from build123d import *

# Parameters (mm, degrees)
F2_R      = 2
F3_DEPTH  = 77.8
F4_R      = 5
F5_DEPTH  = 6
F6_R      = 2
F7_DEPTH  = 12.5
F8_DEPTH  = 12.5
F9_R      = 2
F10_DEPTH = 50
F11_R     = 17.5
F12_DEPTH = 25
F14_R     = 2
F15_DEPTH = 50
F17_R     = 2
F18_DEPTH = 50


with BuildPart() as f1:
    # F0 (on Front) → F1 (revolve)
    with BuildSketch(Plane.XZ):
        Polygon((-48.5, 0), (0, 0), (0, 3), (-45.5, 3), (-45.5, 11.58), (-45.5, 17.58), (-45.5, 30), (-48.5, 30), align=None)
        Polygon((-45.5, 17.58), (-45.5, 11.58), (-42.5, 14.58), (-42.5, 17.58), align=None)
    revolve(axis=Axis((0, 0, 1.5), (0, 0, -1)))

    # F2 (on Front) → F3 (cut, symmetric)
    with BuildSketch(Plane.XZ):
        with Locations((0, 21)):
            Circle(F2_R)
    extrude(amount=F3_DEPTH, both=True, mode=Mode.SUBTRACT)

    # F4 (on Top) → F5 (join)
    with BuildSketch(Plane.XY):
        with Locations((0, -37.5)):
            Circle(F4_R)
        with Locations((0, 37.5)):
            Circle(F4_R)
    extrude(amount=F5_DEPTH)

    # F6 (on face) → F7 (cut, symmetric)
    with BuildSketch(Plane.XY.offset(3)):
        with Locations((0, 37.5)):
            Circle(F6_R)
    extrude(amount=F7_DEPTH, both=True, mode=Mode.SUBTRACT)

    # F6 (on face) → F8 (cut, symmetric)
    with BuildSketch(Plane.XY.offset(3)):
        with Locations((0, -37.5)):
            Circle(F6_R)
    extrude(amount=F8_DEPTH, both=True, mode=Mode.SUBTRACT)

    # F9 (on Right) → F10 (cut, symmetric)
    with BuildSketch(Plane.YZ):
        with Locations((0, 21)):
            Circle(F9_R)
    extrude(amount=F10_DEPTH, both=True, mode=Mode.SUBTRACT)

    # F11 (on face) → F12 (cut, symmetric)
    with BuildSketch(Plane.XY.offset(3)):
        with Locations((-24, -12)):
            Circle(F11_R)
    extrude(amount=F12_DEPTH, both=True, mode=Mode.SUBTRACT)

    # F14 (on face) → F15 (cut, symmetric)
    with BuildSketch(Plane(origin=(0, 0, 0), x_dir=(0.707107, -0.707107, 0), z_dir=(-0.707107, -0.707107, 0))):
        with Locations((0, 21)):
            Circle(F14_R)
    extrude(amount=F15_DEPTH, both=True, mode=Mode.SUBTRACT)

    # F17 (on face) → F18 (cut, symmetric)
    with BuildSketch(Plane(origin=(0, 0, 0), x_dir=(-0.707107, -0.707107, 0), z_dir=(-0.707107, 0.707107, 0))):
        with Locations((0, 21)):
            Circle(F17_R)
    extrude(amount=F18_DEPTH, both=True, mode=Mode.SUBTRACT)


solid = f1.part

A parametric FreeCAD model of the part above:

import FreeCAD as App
import Part
import Sketcher

V = App.Vector
Q = App.Units.Quantity


def add_polygon(sketch, points):
    """Adds a closed chain of lines whose ends are joined by coincident constraints."""
    first, n = sketch.GeometryCount, len(points)
    for a, b in zip(points, points[1:] + points[:1]):
        sketch.addGeometry(Part.LineSegment(App.Vector(*a, 0), App.Vector(*b, 0)), False)
    for i in range(n):
        sketch.addConstraint(Sketcher.Constraint("Coincident", first + i, 2, first + (i + 1) % n, 1))

doc = App.newDocument("Part")
body = doc.addObject("PartDesign::Body", "Body")

sketch1 = doc.addObject("Sketcher::SketchObject", "Sketch")
body.addObject(sketch1)
sketch1.AttachmentSupport = (doc.XZ_Plane, [""])
sketch1.MapMode = "FlatFace"
add_polygon(sketch1, [(-48.5, 0), (0, 0), (0, 3), (-45.5, 3), (-45.5, 11.58), (-42.5, 14.58), (-42.5, 17.58), (-45.5, 17.58), (-45.5, 30), (-48.5, 30)])
sketch1.addConstraint(Sketcher.Constraint("Horizontal", 0))
sketch1.addConstraint(Sketcher.Constraint("Vertical", 1))
sketch1.addConstraint(Sketcher.Constraint("Horizontal", 2))
sketch1.addConstraint(Sketcher.Constraint("Vertical", 3))
sketch1.addConstraint(Sketcher.Constraint("Vertical", 5))
sketch1.addConstraint(Sketcher.Constraint("Horizontal", 6))
sketch1.addConstraint(Sketcher.Constraint("Vertical", 7))
sketch1.addConstraint(Sketcher.Constraint("Horizontal", 8))
sketch1.addConstraint(Sketcher.Constraint("Vertical", 9))
sketch1.addConstraint(Sketcher.Constraint("Coincident", 0, 2, -1, 1))
sketch1.addConstraint(Sketcher.Constraint("Vertical", 3, 2, 6, 2))
sketch1.addConstraint(Sketcher.Constraint("Equal", 6, 8))
sketch1.addConstraint(Sketcher.Constraint("Equal", 8, 1))
sketch1.addConstraint(Sketcher.Constraint("Equal", 1, 5))
sketch1.addConstraint(Sketcher.Constraint("DistanceX", 6, 2, 6, 1, Q("3 mm")))
sketch1.addConstraint(Sketcher.Constraint("DistanceY", 9, 2, 9, 1, Q("30 mm")))
sketch1.addConstraint(Sketcher.Constraint("Angle", 4, Q("45 deg")))
sketch1.addConstraint(Sketcher.Constraint("DistanceX", 0, 1, 0, 2, Q("48.5 mm")))
sketch1.addConstraint(Sketcher.Constraint("DistanceY", 3, 1, 3, 2, Q("8.58 mm")))
revolution = doc.addObject("PartDesign::Revolution", "Revolution")
body.addObject(revolution)
revolution.Profile = sketch1
revolution.ReferenceAxis = (sketch1, ["V_Axis"])
revolution.Angle = 360

sketch2 = doc.addObject("Sketcher::SketchObject", "Sketch001")
body.addObject(sketch2)
sketch2.AttachmentSupport = (doc.XZ_Plane, [""])
sketch2.MapMode = "FlatFace"
sketch2.addGeometry(Part.Circle(V(0, 21, 0), V(0, 0, 1), 2), False)
sketch2.addConstraint(Sketcher.Constraint("PointOnObject", 0, 3, -2))
sketch2.addConstraint(Sketcher.Constraint("Diameter", 0, Q("4 mm")))
sketch2.addConstraint(Sketcher.Constraint("DistanceY", -1, 1, 0, 3, Q("21 mm")))
pocket1 = doc.addObject("PartDesign::Pocket", "Pocket")
body.addObject(pocket1)
pocket1.Profile = sketch2
pocket1.Length = 155.6
pocket1.Midplane = True

sketch3 = doc.addObject("Sketcher::SketchObject", "Sketch002")
body.addObject(sketch3)
sketch3.AttachmentSupport = (doc.XY_Plane, [""])
sketch3.MapMode = "FlatFace"
sketch3.addGeometry(Part.Circle(V(0, -37.5, 0), V(0, 0, 1), 5), False)
sketch3.addGeometry(Part.Circle(V(0, 37.5, 0), V(0, 0, 1), 5), False)
sketch3.addConstraint(Sketcher.Constraint("Equal", 0, 1))
sketch3.addConstraint(Sketcher.Constraint("Symmetric", 0, 3, 1, 3, -1, 1))
sketch3.addConstraint(Sketcher.Constraint("PointOnObject", 0, 3, -2))
sketch3.addConstraint(Sketcher.Constraint("Diameter", 0, Q("10 mm")))
sketch3.addConstraint(Sketcher.Constraint("DistanceY", 0, 3, 1, 3, Q("75 mm")))
pad1 = doc.addObject("PartDesign::Pad", "Pad")
body.addObject(pad1)
pad1.Profile = sketch3
pad1.Length = 6

sketch4 = doc.addObject("Sketcher::SketchObject", "Sketch003")
body.addObject(sketch4)
sketch4.AttachmentSupport = (doc.XY_Plane, [""])
sketch4.MapMode = "FlatFace"
sketch4.AttachmentOffset = App.Placement(V(0, 0, 3), App.Rotation())
sketch4.addGeometry(Part.Circle(V(0, 37.5, 0), V(0, 0, 1), 2), False)
sketch4.addConstraint(Sketcher.Constraint("PointOnObject", 0, 3, -2))
sketch4.addConstraint(Sketcher.Constraint("Diameter", 0, Q("4 mm")))
sketch4.addConstraint(Sketcher.Constraint("DistanceY", -1, 1, 0, 3, Q("37.5 mm")))
pocket2 = doc.addObject("PartDesign::Pocket", "Pocket001")
body.addObject(pocket2)
pocket2.Profile = sketch4
pocket2.Length = 25
pocket2.Midplane = True

sketch5 = doc.addObject("Sketcher::SketchObject", "Sketch004")
body.addObject(sketch5)
sketch5.AttachmentSupport = (doc.XY_Plane, [""])
sketch5.MapMode = "FlatFace"
sketch5.AttachmentOffset = App.Placement(V(0, 0, 3), App.Rotation())
sketch5.addGeometry(Part.Circle(V(0, -37.5, 0), V(0, 0, 1), 2), False)
sketch5.addConstraint(Sketcher.Constraint("PointOnObject", 0, 3, -2))
sketch5.addConstraint(Sketcher.Constraint("Diameter", 0, Q("4 mm")))
sketch5.addConstraint(Sketcher.Constraint("DistanceY", 0, 3, -1, 1, Q("37.5 mm")))
pocket3 = doc.addObject("PartDesign::Pocket", "Pocket002")
body.addObject(pocket3)
pocket3.Profile = sketch5
pocket3.Length = 25
pocket3.Midplane = True

sketch6 = doc.addObject("Sketcher::SketchObject", "Sketch005")
body.addObject(sketch6)
sketch6.AttachmentSupport = (doc.YZ_Plane, [""])
sketch6.MapMode = "FlatFace"
sketch6.addGeometry(Part.Circle(V(0, 21, 0), V(0, 0, 1), 2), False)
sketch6.addConstraint(Sketcher.Constraint("PointOnObject", 0, 3, -2))
sketch6.addConstraint(Sketcher.Constraint("Diameter", 0, Q("4 mm")))
sketch6.addConstraint(Sketcher.Constraint("DistanceY", -1, 1, 0, 3, Q("21 mm")))
pocket4 = doc.addObject("PartDesign::Pocket", "Pocket003")
body.addObject(pocket4)
pocket4.Profile = sketch6
pocket4.Length = 100
pocket4.Midplane = True

sketch7 = doc.addObject("Sketcher::SketchObject", "Sketch006")
body.addObject(sketch7)
sketch7.AttachmentSupport = (doc.XY_Plane, [""])
sketch7.MapMode = "FlatFace"
sketch7.AttachmentOffset = App.Placement(V(0, 0, 3), App.Rotation())
sketch7.addGeometry(Part.Circle(V(-24, -12, 0), V(0, 0, 1), 17.5), False)
sketch7.addConstraint(Sketcher.Constraint("Diameter", 0, Q("35 mm")))
sketch7.addConstraint(Sketcher.Constraint("DistanceX", 0, 3, -1, 1, Q("24 mm")))
sketch7.addConstraint(Sketcher.Constraint("DistanceY", 0, 3, -1, 1, Q("12 mm")))
pocket5 = doc.addObject("PartDesign::Pocket", "Pocket004")
body.addObject(pocket5)
pocket5.Profile = sketch7
pocket5.Length = 50
pocket5.Midplane = True

sketch8 = doc.addObject("Sketcher::SketchObject", "Sketch007")
body.addObject(sketch8)
sketch8.Placement = App.Placement(V(0, 0, 0), App.Rotation(V(0.707106781, -0.707106781, 0), V(0, 0, 0.999999999), V(-0.707106781, -0.707106781, 0), "ZXY"))
sketch8.addGeometry(Part.Circle(V(0, 21, 0), V(0, 0, 1), 2), False)
sketch8.addConstraint(Sketcher.Constraint("PointOnObject", 0, 3, -2))
sketch8.addConstraint(Sketcher.Constraint("Diameter", 0, Q("4 mm")))
sketch8.addConstraint(Sketcher.Constraint("DistanceY", -1, 1, 0, 3, Q("21 mm")))
pocket6 = doc.addObject("PartDesign::Pocket", "Pocket005")
body.addObject(pocket6)
pocket6.Profile = sketch8
pocket6.Length = 100
pocket6.Midplane = True

sketch9 = doc.addObject("Sketcher::SketchObject", "Sketch008")
body.addObject(sketch9)
sketch9.Placement = App.Placement(V(0, 0, 0), App.Rotation(V(-0.707106781, -0.707106781, 0), V(0, 0, 0.999999999), V(-0.707106781, 0.707106781, 0), "ZXY"))
sketch9.addGeometry(Part.Circle(V(0, 21, 0), V(0, 0, 1), 2), False)
sketch9.addConstraint(Sketcher.Constraint("PointOnObject", 0, 3, -2))
sketch9.addConstraint(Sketcher.Constraint("Diameter", 0, Q("4 mm")))
sketch9.addConstraint(Sketcher.Constraint("DistanceY", -1, 1, 0, 3, Q("21 mm")))
pocket7 = doc.addObject("PartDesign::Pocket", "Pocket006")
body.addObject(pocket7)
pocket7.Profile = sketch9
pocket7.Length = 100
pocket7.Midplane = True

doc.recompute()
